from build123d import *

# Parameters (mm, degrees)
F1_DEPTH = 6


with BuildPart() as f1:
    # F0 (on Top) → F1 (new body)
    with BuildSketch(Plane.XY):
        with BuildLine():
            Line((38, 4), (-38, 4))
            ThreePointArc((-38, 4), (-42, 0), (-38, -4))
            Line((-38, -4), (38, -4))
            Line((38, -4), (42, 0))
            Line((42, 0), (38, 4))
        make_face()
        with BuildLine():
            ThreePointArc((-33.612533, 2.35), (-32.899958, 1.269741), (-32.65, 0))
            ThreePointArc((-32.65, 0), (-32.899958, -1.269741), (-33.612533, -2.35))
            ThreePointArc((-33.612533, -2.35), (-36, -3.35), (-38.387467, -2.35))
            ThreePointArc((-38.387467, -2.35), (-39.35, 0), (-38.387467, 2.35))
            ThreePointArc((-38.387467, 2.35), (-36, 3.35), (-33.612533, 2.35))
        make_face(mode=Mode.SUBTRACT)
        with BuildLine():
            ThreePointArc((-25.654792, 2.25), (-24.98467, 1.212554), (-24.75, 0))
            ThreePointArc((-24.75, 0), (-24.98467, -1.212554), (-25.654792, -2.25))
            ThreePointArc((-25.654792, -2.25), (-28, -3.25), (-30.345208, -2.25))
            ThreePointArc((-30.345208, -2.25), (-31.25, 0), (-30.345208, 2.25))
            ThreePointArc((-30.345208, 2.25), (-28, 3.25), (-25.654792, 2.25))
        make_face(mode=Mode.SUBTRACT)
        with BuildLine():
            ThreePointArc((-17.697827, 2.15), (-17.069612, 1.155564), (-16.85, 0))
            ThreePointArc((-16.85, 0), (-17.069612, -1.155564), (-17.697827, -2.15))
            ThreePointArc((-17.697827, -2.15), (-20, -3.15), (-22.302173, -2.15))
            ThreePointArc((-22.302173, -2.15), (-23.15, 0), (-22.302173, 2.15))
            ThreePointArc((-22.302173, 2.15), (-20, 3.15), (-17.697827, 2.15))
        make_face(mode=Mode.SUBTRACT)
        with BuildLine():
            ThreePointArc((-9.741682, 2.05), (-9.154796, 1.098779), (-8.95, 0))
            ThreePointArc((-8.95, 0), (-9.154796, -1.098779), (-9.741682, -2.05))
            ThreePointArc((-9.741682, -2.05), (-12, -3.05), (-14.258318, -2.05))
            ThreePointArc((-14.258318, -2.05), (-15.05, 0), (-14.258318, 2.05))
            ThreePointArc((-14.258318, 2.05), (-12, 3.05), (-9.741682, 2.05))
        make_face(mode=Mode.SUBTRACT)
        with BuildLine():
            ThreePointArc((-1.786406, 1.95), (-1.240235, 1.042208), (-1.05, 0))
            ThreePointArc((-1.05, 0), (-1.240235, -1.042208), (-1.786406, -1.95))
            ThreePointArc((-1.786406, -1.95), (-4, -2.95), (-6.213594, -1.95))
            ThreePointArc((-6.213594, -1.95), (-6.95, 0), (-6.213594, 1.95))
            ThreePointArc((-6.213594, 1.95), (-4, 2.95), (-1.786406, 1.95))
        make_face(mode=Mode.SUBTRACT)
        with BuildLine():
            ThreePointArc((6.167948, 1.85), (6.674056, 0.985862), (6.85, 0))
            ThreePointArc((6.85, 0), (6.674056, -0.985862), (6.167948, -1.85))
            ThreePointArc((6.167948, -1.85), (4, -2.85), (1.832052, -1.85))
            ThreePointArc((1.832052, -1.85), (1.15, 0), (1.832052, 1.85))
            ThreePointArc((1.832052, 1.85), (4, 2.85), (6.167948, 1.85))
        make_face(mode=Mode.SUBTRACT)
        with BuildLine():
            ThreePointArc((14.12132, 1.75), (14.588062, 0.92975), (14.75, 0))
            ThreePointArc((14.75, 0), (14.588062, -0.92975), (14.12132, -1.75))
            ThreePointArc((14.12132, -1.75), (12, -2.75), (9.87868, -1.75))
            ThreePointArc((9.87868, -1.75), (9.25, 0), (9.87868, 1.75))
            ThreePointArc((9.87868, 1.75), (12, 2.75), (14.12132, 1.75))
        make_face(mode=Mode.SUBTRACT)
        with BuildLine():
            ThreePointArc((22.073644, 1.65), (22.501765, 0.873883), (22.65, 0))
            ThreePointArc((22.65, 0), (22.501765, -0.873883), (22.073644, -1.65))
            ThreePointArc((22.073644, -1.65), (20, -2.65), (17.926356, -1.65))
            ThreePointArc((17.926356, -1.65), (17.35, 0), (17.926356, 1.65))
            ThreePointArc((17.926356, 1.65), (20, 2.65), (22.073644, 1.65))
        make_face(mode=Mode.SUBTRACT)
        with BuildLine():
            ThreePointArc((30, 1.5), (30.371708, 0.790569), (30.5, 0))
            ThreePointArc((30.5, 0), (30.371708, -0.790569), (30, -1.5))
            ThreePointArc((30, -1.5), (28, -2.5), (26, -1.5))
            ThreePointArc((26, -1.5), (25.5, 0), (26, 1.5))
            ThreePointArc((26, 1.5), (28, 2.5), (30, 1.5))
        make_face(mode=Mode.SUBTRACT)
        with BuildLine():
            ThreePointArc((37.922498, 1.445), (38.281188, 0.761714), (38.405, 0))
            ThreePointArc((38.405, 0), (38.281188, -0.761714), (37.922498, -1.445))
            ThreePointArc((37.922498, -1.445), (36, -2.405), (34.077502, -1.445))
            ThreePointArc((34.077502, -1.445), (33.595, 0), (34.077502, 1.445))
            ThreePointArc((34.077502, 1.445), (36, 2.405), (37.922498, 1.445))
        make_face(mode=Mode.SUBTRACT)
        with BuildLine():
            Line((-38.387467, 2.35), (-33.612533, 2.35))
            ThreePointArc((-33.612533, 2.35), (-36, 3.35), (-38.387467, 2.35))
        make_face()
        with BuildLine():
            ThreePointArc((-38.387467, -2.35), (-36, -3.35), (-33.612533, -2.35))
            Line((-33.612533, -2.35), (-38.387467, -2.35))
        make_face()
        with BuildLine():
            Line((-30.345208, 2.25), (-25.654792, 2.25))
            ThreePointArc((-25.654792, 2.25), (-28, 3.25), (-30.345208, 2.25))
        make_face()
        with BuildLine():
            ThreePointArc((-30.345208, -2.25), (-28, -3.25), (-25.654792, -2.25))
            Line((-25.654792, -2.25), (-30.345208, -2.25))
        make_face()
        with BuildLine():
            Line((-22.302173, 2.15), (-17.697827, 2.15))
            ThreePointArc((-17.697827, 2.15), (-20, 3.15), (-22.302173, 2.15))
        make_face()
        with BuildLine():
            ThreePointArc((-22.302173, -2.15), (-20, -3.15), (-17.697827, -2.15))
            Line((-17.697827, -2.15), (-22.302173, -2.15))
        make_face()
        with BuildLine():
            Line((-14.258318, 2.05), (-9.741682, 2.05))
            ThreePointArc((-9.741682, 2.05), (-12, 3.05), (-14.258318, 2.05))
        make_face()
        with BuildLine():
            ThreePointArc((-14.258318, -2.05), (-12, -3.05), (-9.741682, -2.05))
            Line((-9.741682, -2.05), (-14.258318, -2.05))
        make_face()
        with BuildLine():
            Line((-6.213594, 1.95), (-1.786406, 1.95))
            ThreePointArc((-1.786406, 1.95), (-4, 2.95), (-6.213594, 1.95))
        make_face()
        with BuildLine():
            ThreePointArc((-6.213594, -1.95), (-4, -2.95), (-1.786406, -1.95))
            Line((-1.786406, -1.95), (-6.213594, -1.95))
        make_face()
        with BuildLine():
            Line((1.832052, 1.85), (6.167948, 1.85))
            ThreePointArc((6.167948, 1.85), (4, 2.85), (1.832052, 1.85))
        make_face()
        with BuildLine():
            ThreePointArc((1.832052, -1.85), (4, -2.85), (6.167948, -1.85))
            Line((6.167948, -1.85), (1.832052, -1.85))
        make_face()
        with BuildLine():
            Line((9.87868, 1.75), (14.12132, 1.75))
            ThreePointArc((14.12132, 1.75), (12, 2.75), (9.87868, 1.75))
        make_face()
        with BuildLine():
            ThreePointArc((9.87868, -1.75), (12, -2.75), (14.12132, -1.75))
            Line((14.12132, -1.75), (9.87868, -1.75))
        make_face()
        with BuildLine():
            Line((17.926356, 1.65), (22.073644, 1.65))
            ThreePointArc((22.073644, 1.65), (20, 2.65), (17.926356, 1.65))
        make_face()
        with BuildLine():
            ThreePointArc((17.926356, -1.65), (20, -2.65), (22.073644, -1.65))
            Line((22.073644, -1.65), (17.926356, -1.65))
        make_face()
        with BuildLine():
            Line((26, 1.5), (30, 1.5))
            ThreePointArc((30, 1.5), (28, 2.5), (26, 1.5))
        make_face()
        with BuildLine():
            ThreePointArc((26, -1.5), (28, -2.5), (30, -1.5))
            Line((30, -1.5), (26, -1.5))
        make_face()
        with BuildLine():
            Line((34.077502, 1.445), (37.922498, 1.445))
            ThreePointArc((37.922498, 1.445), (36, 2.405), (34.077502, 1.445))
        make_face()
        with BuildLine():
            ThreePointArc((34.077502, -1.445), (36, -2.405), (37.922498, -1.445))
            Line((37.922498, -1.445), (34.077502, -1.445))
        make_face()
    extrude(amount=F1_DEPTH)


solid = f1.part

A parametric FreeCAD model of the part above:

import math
import FreeCAD as App
import Part
import Sketcher

doc = App.newDocument("Part")
body = doc.addObject("PartDesign::Body", "Body")

sketch1 = body.newObject("Sketcher::SketchObject", "Sketch")
sketch1.AttachmentSupport = (doc.getObject("XY_Plane"), [""])
sketch1.MapMode = "FlatFace"
sketch1.addGeometry(Part.LineSegment(App.Vector(38, 4, 0), App.Vector(-38, 4, 0)), False)
sketch1.addGeometry(Part.ArcOfCircle(Part.Circle(App.Vector(-38, 0, 0), App.Vector(0, 0, 1), 4), math.radians(90), math.radians(270)), False)
sketch1.addGeometry(Part.LineSegment(App.Vector(-38, -4, 0), App.Vector(38, -4, 0)), False)
sketch1.addGeometry(Part.LineSegment(App.Vector(38, -4, 0), App.Vector(42, 0, 0)), False)
sketch1.addGeometry(Part.LineSegment(App.Vector(42, 0, 0), App.Vector(38, 4, 0)), False)
sketch1.addGeometry(Part.ArcOfCircle(Part.Circle(App.Vector(4, 0, 0), App.Vector(0, 0, 1), 2.8), math.radians(0), math.radians(40)), False)
sketch1.addGeometry(Part.ArcOfCircle(Part.Circle(App.Vector(4, 0, 0), App.Vector(0, 0, 1), 2.8), math.radians(-40), math.radians(0)), False)
sketch1.addGeometry(Part.LineSegment(App.Vector(6.2, -1.9, 0), App.Vector(1.8, -1.9, 0)), False)
sketch1.addGeometry(Part.ArcOfCircle(Part.Circle(App.Vector(4, 0, 0), App.Vector(0, 0, 1), 2.8), math.radians(140), math.radians(220)), False)
sketch1.addGeometry(Part.LineSegment(App.Vector(1.8, 1.9, 0), App.Vector(6.2, 1.9, 0)), False)
sketch1.addGeometry(Part.ArcOfCircle(Part.Circle(App.Vector(-36, 0, 0), App.Vector(0, 0, 1), 3.3), math.radians(135), math.radians(225)), False)
sketch1.addGeometry(Part.LineSegment(App.Vector(-38.4, 2.4, 0), App.Vector(-33.6, 2.4, 0)), False)
sketch1.addGeometry(Part.ArcOfCircle(Part.Circle(App.Vector(-36, 0, 0), App.Vector(0, 0, 1), 3.3), math.radians(0), math.radians(45)), False)
sketch1.addGeometry(Part.ArcOfCircle(Part.Circle(App.Vector(-36, 0, 0), App.Vector(0, 0, 1), 3.3), math.radians(-45), math.radians(0)), False)
sketch1.addGeometry(Part.LineSegment(App.Vector(-33.6, -2.4, 0), App.Vector(-38.4, -2.4, 0)), False)
sketch1.addGeometry(Part.ArcOfCircle(Part.Circle(App.Vector(-28, 0, 0), App.Vector(0, 0, 1), 3.2), math.radians(0), math.radians(44)), False)
sketch1.addGeometry(Part.ArcOfCircle(Part.Circle(App.Vector(-28, 0, 0), App.Vector(0, 0, 1), 3.2), math.radians(-44), math.radians(0)), False)
sketch1.addGeometry(Part.LineSegment(App.Vector(-25.7, -2.2, 0), App.Vector(-30.3, -2.2, 0)), False)
sketch1.addGeometry(Part.ArcOfCircle(Part.Circle(App.Vector(-28, 0, 0), App.Vector(0, 0, 1), 3.3), math.radians(136), math.radians(224)), False)
sketch1.addGeometry(Part.LineSegment(App.Vector(-30.3, 2.2, 0), App.Vector(-25.7, 2.2, 0)), False)
sketch1.addGeometry(Part.ArcOfCircle(Part.Circle(App.Vector(-20, 0, 0), App.Vector(0, 0, 1), 3.1), math.radians(0), math.radians(43)), False)
sketch1.addGeometry(Part.ArcOfCircle(Part.Circle(App.Vector(-20, 0, 0), App.Vector(0, 0, 1), 3.1), math.radians(-43), math.radians(0)), False)
sketch1.addGeometry(Part.LineSegment(App.Vector(-17.7, -2.1, 0), App.Vector(-22.3, -2.1, 0)), False)
sketch1.addGeometry(Part.ArcOfCircle(Part.Circle(App.Vector(-20, 0, 0), App.Vector(0, 0, 1), 3.2), math.radians(137), math.radians(223)), False)
sketch1.addGeometry(Part.LineSegment(App.Vector(-22.3, 2.1, 0), App.Vector(-17.7, 2.1, 0)), False)
sketch1.addGeometry(Part.ArcOfCircle(Part.Circle(App.Vector(-12, 0, 0), App.Vector(0, 0, 1), 3), math.radians(0), math.radians(42)), False)
sketch1.addGeometry(Part.ArcOfCircle(Part.Circle(App.Vector(-12, 0, 0), App.Vector(0, 0, 1), 3), math.radians(-42), math.radians(0)), False)
sketch1.addGeometry(Part.LineSegment(App.Vector(-9.7, -2, 0), App.Vector(-14.3, -2, 0)), False)
sketch1.addGeometry(Part.ArcOfCircle(Part.Circle(App.Vector(-12, 0, 0), App.Vector(0, 0, 1), 3.1), math.radians(138), math.radians(222)), False)
sketch1.addGeometry(Part.LineSegment(App.Vector(-14.3, 2, 0), App.Vector(-9.7, 2, 0)), False)
sketch1.addGeometry(Part.ArcOfCircle(Part.Circle(App.Vector(-4, 0, 0), App.Vector(0, 0, 1), 2.9), math.radians(0), math.radians(41)), False)
sketch1.addGeometry(Part.ArcOfCircle(Part.Circle(App.Vector(-4, 0, 0), App.Vector(0, 0, 1), 2.9), math.radians(-41), math.radians(0)), False)
sketch1.addGeometry(Part.LineSegment(App.Vector(-1.8, -1.9, 0), App.Vector(-6.2, -1.9, 0)), False)
sketch1.addGeometry(Part.ArcOfCircle(Part.Circle(App.Vector(-4, 0, 0), App.Vector(0, 0, 1), 2.9), math.radians(139), math.radians(221)), False)
sketch1.addGeometry(Part.LineSegment(App.Vector(-6.2, 1.9, 0), App.Vector(-1.8, 1.9, 0)), False)
sketch1.addGeometry(Part.ArcOfCircle(Part.Circle(App.Vector(12, 0, 0), App.Vector(0, 0, 1), 2.7), math.radians(0), math.radians(40)), False)
sketch1.addGeometry(Part.ArcOfCircle(Part.Circle(App.Vector(12, 0, 0), App.Vector(0, 0, 1), 2.7), math.radians(-40), math.radians(0)), False)
sketch1.addGeometry(Part.LineSegment(App.Vector(14.1, -1.8, 0), App.Vector(9.9, -1.8, 0)), False)
sketch1.addGeometry(Part.ArcOfCircle(Part.Circle(App.Vector(12, 0, 0), App.Vector(0, 0, 1), 2.7), math.radians(140), math.radians(220)), False)
sketch1.addGeometry(Part.LineSegment(App.Vector(9.9, 1.8, 0), App.Vector(14.1, 1.8, 0)), False)
sketch1.addGeometry(Part.ArcOfCircle(Part.Circle(App.Vector(20, 0, 0), App.Vector(0, 0, 1), 2.7), math.radians(0), math.radians(39)), False)
sketch1.addGeometry(Part.ArcOfCircle(Part.Circle(App.Vector(20, 0, 0), App.Vector(0, 0, 1), 2.7), math.radians(-39), math.radians(0)), False)
sketch1.addGeometry(Part.LineSegment(App.Vector(22.1, -1.6, 0), App.Vector(17.9, -1.6, 0)), False)
sketch1.addGeometry(Part.ArcOfCircle(Part.Circle(App.Vector(20, 0, 0), App.Vector(0, 0, 1), 2.6), math.radians(141), math.radians(219)), False)
sketch1.addGeometry(Part.LineSegment(App.Vector(17.9, 1.6, 0), App.Vector(22.1, 1.6, 0)), False)
sketch1.addGeometry(Part.ArcOfCircle(Part.Circle(App.Vector(28, 0, 0), App.Vector(0, 0, 1), 2.5), math.radians(143), math.radians(217)), False)
sketch1.addGeometry(Part.LineSegment(App.Vector(26, 1.5, 0), App.Vector(30, 1.5, 0)), False)
sketch1.addGeometry(Part.ArcOfCircle(Part.Circle(App.Vector(28, 0, 0), App.Vector(0, 0, 1), 2.5), math.radians(0), math.radians(37)), False)
sketch1.addGeometry(Part.ArcOfCircle(Part.Circle(App.Vector(28, 0, 0), App.Vector(0, 0, 1), 2.5), math.radians(-37), math.radians(0)), False)
sketch1.addGeometry(Part.LineSegment(App.Vector(30, -1.5, 0), App.Vector(26, -1.5, 0)), False)
sketch1.addGeometry(Part.ArcOfCircle(Part.Circle(App.Vector(36, 0, 0), App.Vector(0, 0, 1), 2.4), math.radians(0), math.radians(37)), False)
sketch1.addGeometry(Part.ArcOfCircle(Part.Circle(App.Vector(36, 0, 0), App.Vector(0, 0, 1), 2.4), math.radians(-37), math.radians(0)), False)
sketch1.addGeometry(Part.LineSegment(App.Vector(37.9, -1.4, 0), App.Vector(34.1, -1.4, 0)), False)
sketch1.addGeometry(Part.ArcOfCircle(Part.Circle(App.Vector(36, 0, 0), App.Vector(0, 0, 1), 2.4), math.radians(143), math.radians(217)), False)
sketch1.addGeometry(Part.LineSegment(App.Vector(34.1, 1.4, 0), App.Vector(37.9, 1.4, 0)), False)
sketch1.addConstraint(Sketcher.Constraint("Tangent", 0, 2, 1, 1))
sketch1.addConstraint(Sketcher.Constraint("Tangent", 1, 2, 2, 1))
sketch1.addConstraint(Sketcher.Constraint("Coincident", 2, 2, 3, 1))
sketch1.addConstraint(Sketcher.Constraint("Coincident", 3, 2, 4, 1))
sketch1.addConstraint(Sketcher.Constraint("Coincident", 4, 2, 0, 1))
sketch1.addConstraint(Sketcher.Constraint("Tangent", 5, 1, 6, 2))
sketch1.addConstraint(Sketcher.Constraint("Coincident", 6, 1, 7, 1))
sketch1.addConstraint(Sketcher.Constraint("Coincident", 7, 2, 8, 2))
sketch1.addConstraint(Sketcher.Constraint("Coincident", 8, 1, 9, 1))
sketch1.addConstraint(Sketcher.Constraint("Coincident", 9, 2, 5, 2))
sketch1.addConstraint(Sketcher.Constraint("Coincident", 10, 1, 11, 1))
sketch1.addConstraint(Sketcher.Constraint("Coincident", 11, 2, 12, 2))
sketch1.addConstraint(Sketcher.Constraint("Tangent", 12, 1, 13, 2))
sketch1.addConstraint(Sketcher.Constraint("Coincident", 13, 1, 14, 1))
sketch1.addConstraint(Sketcher.Constraint("Coincident", 14, 2, 10, 2))
sketch1.addConstraint(Sketcher.Constraint("Tangent", 15, 1, 16, 2))
sketch1.addConstraint(Sketcher.Constraint("Coincident", 16, 1, 17, 1))
sketch1.addConstraint(Sketcher.Constraint("Coincident", 17, 2, 18, 2))
sketch1.addConstraint(Sketcher.Constraint("Coincident", 18, 1, 19, 1))
sketch1.addConstraint(Sketcher.Constraint("Coincident", 19, 2, 15, 2))
sketch1.addConstraint(Sketcher.Constraint("Tangent", 20, 1, 21, 2))
sketch1.addConstraint(Sketcher.Constraint("Coincident", 21, 1, 22, 1))
sketch1.addConstraint(Sketcher.Constraint("Coincident", 22, 2, 23, 2))
sketch1.addConstraint(Sketcher.Constraint("Coincident", 23, 1, 24, 1))
sketch1.addConstraint(Sketcher.Constraint("Coincident", 24, 2, 20, 2))
sketch1.addConstraint(Sketcher.Constraint("Tangent", 25, 1, 26, 2))
sketch1.addConstraint(Sketcher.Constraint("Coincident", 26, 1, 27, 1))
sketch1.addConstraint(Sketcher.Constraint("Coincident", 27, 2, 28, 2))
sketch1.addConstraint(Sketcher.Constraint("Coincident", 28, 1, 29, 1))
sketch1.addConstraint(Sketcher.Constraint("Coincident", 29, 2, 25, 2))
sketch1.addConstraint(Sketcher.Constraint("Tangent", 30, 1, 31, 2))
sketch1.addConstraint(Sketcher.Constraint("Coincident", 31, 1, 32, 1))
sketch1.addConstraint(Sketcher.Constraint("Coincident", 32, 2, 33, 2))
sketch1.addConstraint(Sketcher.Constraint("Coincident", 33, 1, 34, 1))
sketch1.addConstraint(Sketcher.Constraint("Coincident", 34, 2, 30, 2))
sketch1.addConstraint(Sketcher.Constraint("Tangent", 35, 1, 36, 2))
sketch1.addConstraint(Sketcher.Constraint("Coincident", 36, 1, 37, 1))
sketch1.addConstraint(Sketcher.Constraint("Coincident", 37, 2, 38, 2))
sketch1.addConstraint(Sketcher.Constraint("Coincident", 38, 1, 39, 1))
sketch1.addConstraint(Sketcher.Constraint("Coincident", 39, 2, 35, 2))
sketch1.addConstraint(Sketcher.Constraint("Tangent", 40, 1, 41, 2))
sketch1.addConstraint(Sketcher.Constraint("Coincident", 41, 1, 42, 1))
sketch1.addConstraint(Sketcher.Constraint("Coincident", 42, 2, 43, 2))
sketch1.addConstraint(Sketcher.Constraint("Coincident", 43, 1, 44, 1))
sketch1.addConstraint(Sketcher.Constraint("Coincident", 44, 2, 40, 2))
sketch1.addConstraint(Sketcher.Constraint("Coincident", 45, 1, 46, 1))
sketch1.addConstraint(Sketcher.Constraint("Coincident", 46, 2, 47, 2))
sketch1.addConstraint(Sketcher.Constraint("Tangent", 47, 1, 48, 2))
sketch1.addConstraint(Sketcher.Constraint("Coincident", 48, 1, 49, 1))
sketch1.addConstraint(Sketcher.Constraint("Coincident", 49, 2, 45, 2))
sketch1.addConstraint(Sketcher.Constraint("Coincident", 50, 1, 51, 2))
sketch1.addConstraint(Sketcher.Constraint("Coincident", 51, 1, 52, 1))
sketch1.addConstraint(Sketcher.Constraint("Coincident", 52, 2, 53, 2))
sketch1.addConstraint(Sketcher.Constraint("Coincident", 53, 1, 54, 1))
sketch1.addConstraint(Sketcher.Constraint("Coincident", 54, 2, 50, 2))
sketch1.addConstraint(Sketcher.Constraint("Horizontal", 0))
sketch1.addConstraint(Sketcher.Constraint("Horizontal", 2))
sketch1.addConstraint(Sketcher.Constraint("Horizontal", 7))
sketch1.addConstraint(Sketcher.Constraint("Horizontal", 9))
sketch1.addConstraint(Sketcher.Constraint("Horizontal", 11))
sketch1.addConstraint(Sketcher.Constraint("Horizontal", 14))
sketch1.addConstraint(Sketcher.Constraint("Horizontal", 17))
sketch1.addConstraint(Sketcher.Constraint("Horizontal", 19))
sketch1.addConstraint(Sketcher.Constraint("Horizontal", 22))
sketch1.addConstraint(Sketcher.Constraint("Horizontal", 24))
sketch1.addConstraint(Sketcher.Constraint("Horizontal", 27))
sketch1.addConstraint(Sketcher.Constraint("Horizontal", 29))
sketch1.addConstraint(Sketcher.Constraint("Horizontal", 32))
sketch1.addConstraint(Sketcher.Constraint("Horizontal", 34))
sketch1.addConstraint(Sketcher.Constraint("Horizontal", 37))
sketch1.addConstraint(Sketcher.Constraint("Horizontal", 39))
sketch1.addConstraint(Sketcher.Constraint("Horizontal", 42))
sketch1.addConstraint(Sketcher.Constraint("Horizontal", 44))
sketch1.addConstraint(Sketcher.Constraint("Horizontal", 46))
sketch1.addConstraint(Sketcher.Constraint("Horizontal", 49))
sketch1.addConstraint(Sketcher.Constraint("Horizontal", 52))
sketch1.addConstraint(Sketcher.Constraint("Horizontal", 54))
sketch1.addConstraint(Sketcher.Constraint("Coincident", 8, 3, 5, 3))
sketch1.addConstraint(Sketcher.Constraint("Coincident", 12, 3, 10, 3))
sketch1.addConstraint(Sketcher.Constraint("Coincident", 18, 3, 15, 3))
sketch1.addConstraint(Sketcher.Constraint("Coincident", 23, 3, 20, 3))
sketch1.addConstraint(Sketcher.Constraint("Coincident", 28, 3, 25, 3))
sketch1.addConstraint(Sketcher.Constraint("Coincident", 33, 3, 30, 3))
sketch1.addConstraint(Sketcher.Constraint("Coincident", 38, 3, 35, 3))
sketch1.addConstraint(Sketcher.Constraint("Coincident", 43, 3, 40, 3))
sketch1.addConstraint(Sketcher.Constraint("Coincident", 47, 3, 45, 3))
sketch1.addConstraint(Sketcher.Constraint("Coincident", 51, 3, 50, 3))
sketch1.addConstraint(Sketcher.Constraint("Equal", 5, 6))
sketch1.addConstraint(Sketcher.Constraint("Equal", 6, 8))
sketch1.addConstraint(Sketcher.Constraint("Equal", 12, 13))
sketch1.addConstraint(Sketcher.Constraint("Equal", 15, 16))
sketch1.addConstraint(Sketcher.Constraint("Equal", 20, 21))
sketch1.addConstraint(Sketcher.Constraint("Equal", 25, 26))
sketch1.addConstraint(Sketcher.Constraint("Equal", 30, 31))
sketch1.addConstraint(Sketcher.Constraint("Equal", 31, 33))
sketch1.addConstraint(Sketcher.Constraint("Equal", 35, 36))
sketch1.addConstraint(Sketcher.Constraint("Equal", 36, 38))
sketch1.addConstraint(Sketcher.Constraint("Equal", 40, 41))
sketch1.addConstraint(Sketcher.Constraint("Equal", 41, 43))
sketch1.addConstraint(Sketcher.Constraint("Equal", 47, 48))
sketch1.addConstraint(Sketcher.Constraint("Symmetric", 5, 3, 30, 3, -1, 1))
sketch1.addConstraint(Sketcher.Constraint("Symmetric", 25, 3, 35, 3, -1, 1))
sketch1.addConstraint(Sketcher.Constraint("Symmetric", 20, 3, 40, 3, -1, 1))
sketch1.addConstraint(Sketcher.Constraint("Symmetric", 15, 3, 45, 3, -1, 1))
sketch1.addConstraint(Sketcher.Constraint("Symmetric", 10, 3, 50, 3, -1, 1))
sketch1.addConstraint(Sketcher.Constraint("Symmetric", 10, 3, 53, 3, -1, 1))
sketch1.addConstraint(Sketcher.Constraint("Symmetric", 0, 2, 2, 2, -1, 1))
sketch1.addConstraint(Sketcher.Constraint("Symmetric", 7, 2, 8, 1, -1))
sketch1.addConstraint(Sketcher.Constraint("Symmetric", 11, 2, 13, 1, -1))
sketch1.addConstraint(Sketcher.Constraint("Symmetric", 17, 2, 18, 1, -1))
sketch1.addConstraint(Sketcher.Constraint("Symmetric", 22, 2, 23, 1, -1))
sketch1.addConstraint(Sketcher.Constraint("Symmetric", 27, 2, 28, 1, -1))
sketch1.addConstraint(Sketcher.Constraint("PointOnObject", 3, 2, -1))
sketch1.addConstraint(Sketcher.Constraint("PointOnObject", 5, 1, -1))
sketch1.addConstraint(Sketcher.Constraint("PointOnObject", 12, 1, -1))
sketch1.addConstraint(Sketcher.Constraint("PointOnObject", 15, 1, -1))
sketch1.addConstraint(Sketcher.Constraint("PointOnObject", 20, 1, -1))
sketch1.addConstraint(Sketcher.Constraint("PointOnObject", 25, 1, -1))
sketch1.addConstraint(Sketcher.Constraint("PointOnObject", 30, 1, -1))
sketch1.addConstraint(Sketcher.Constraint("PointOnObject", 35, 1, -1))
sketch1.addConstraint(Sketcher.Constraint("PointOnObject", 40, 1, -1))
sketch1.addConstraint(Sketcher.Constraint("PointOnObject", 47, 1, -1))
sketch1.addConstraint(Sketcher.Constraint("PointOnObject", 50, 1, -1))
sketch1.addConstraint(Sketcher.Constraint("Perpendicular", 3, 4))
sketch1.addConstraint(Sketcher.Constraint("Vertical", 2, 2, 4, 2))
sketch1.addConstraint(Sketcher.Constraint("Vertical", 32, 2, 33, 1))
sketch1.addConstraint(Sketcher.Constraint("Vertical", 37, 2, 38, 1))
sketch1.addConstraint(Sketcher.Constraint("Vertical", 42, 2, 43, 1))
sketch1.addConstraint(Sketcher.Constraint("Vertical", 46, 2, 48, 1))
sketch1.addConstraint(Sketcher.Constraint("Vertical", 52, 2, 53, 1))
sketch1.addConstraint(Sketcher.Constraint("Radius", 1, 4.0))
sketch1.addConstraint(Sketcher.Constraint("Radius", 45, 2.5))
sketch1.addConstraint(Sketcher.Constraint("DistanceX", 0, 2, 0, 1, 76.0))
sketch1.addConstraint(Sketcher.Constraint("DistanceX", 46, 1, 46, 2, 4.0))
sketch1.addConstraint(Sketcher.Constraint("Radius", 5, 2.85))
sketch1.addConstraint(Sketcher.Constraint("Radius", 10, 3.349999))
sketch1.addConstraint(Sketcher.Constraint("Radius", 18, 3.25))
sketch1.addConstraint(Sketcher.Constraint("Radius", 23, 3.15))
sketch1.addConstraint(Sketcher.Constraint("Radius", 28, 3.05))
sketch1.addConstraint(Sketcher.Constraint("Radius", 33, 2.949999))
sketch1.addConstraint(Sketcher.Constraint("Radius", 38, 2.749999))
sketch1.addConstraint(Sketcher.Constraint("Radius", 40, 2.65))
sketch1.addConstraint(Sketcher.Constraint("DistanceX", -1, 1, 5, 3, 4.0))
sketch1.addConstraint(Sketcher.Constraint("DistanceX", 10, 3, -1, 1, 36.000001))
sketch1.addConstraint(Sketcher.Constraint("DistanceX", 18, 3, -1, 1, 28.0))
sketch1.addConstraint(Sketcher.Constraint("DistanceX", 23, 3, -1, 1, 20.0))
sketch1.addConstraint(Sketcher.Constraint("DistanceX", 28, 3, -1, 1, 12.0))
sketch1.addConstraint(Sketcher.Constraint("DistanceX", -1, 1, 45, 1, 26.0))
sketch1.addConstraint(Sketcher.Constraint("Radius", 53, 2.404999))
sketch1.addConstraint(Sketcher.Constraint("DistanceY", 6, 1, -1, 1, 1.85))
sketch1.addConstraint(Sketcher.Constraint("DistanceY", -1, 1, 10, 1, 2.35))
sketch1.addConstraint(Sketcher.Constraint("DistanceX", 12, 1, -1, 1, 32.65))
sketch1.addConstraint(Sketcher.Constraint("DistanceX", 15, 1, -1, 1, 24.75))
sketch1.addConstraint(Sketcher.Constraint("DistanceY", 16, 1, -1, 1, 2.25))
sketch1.addConstraint(Sketcher.Constraint("DistanceX", 20, 1, -1, 1, 16.85))
sketch1.addConstraint(Sketcher.Constraint("DistanceY", 21, 1, -1, 1, 2.15))
sketch1.addConstraint(Sketcher.Constraint("DistanceX", 25, 1, -1, 1, 8.95))
sketch1.addConstraint(Sketcher.Constraint("DistanceY", 26, 1, -1, 1, 2.05))
sketch1.addConstraint(Sketcher.Constraint("DistanceY", 31, 1, -1, 1, 1.95))
sketch1.addConstraint(Sketcher.Constraint("DistanceY", 36, 1, -1, 1, 1.75))
sketch1.addConstraint(Sketcher.Constraint("DistanceY", 41, 1, -1, 1, 1.65))
sketch1.addConstraint(Sketcher.Constraint("Radius", 50, 2.40499))
sketch1.addConstraint(Sketcher.Constraint("DistanceY", 51, 1, -1, 1, 1.445))
pad1 = body.newObject("PartDesign::Pad", "Pad")
pad1.Profile = sketch1
pad1.Length = 6

doc.recompute()
